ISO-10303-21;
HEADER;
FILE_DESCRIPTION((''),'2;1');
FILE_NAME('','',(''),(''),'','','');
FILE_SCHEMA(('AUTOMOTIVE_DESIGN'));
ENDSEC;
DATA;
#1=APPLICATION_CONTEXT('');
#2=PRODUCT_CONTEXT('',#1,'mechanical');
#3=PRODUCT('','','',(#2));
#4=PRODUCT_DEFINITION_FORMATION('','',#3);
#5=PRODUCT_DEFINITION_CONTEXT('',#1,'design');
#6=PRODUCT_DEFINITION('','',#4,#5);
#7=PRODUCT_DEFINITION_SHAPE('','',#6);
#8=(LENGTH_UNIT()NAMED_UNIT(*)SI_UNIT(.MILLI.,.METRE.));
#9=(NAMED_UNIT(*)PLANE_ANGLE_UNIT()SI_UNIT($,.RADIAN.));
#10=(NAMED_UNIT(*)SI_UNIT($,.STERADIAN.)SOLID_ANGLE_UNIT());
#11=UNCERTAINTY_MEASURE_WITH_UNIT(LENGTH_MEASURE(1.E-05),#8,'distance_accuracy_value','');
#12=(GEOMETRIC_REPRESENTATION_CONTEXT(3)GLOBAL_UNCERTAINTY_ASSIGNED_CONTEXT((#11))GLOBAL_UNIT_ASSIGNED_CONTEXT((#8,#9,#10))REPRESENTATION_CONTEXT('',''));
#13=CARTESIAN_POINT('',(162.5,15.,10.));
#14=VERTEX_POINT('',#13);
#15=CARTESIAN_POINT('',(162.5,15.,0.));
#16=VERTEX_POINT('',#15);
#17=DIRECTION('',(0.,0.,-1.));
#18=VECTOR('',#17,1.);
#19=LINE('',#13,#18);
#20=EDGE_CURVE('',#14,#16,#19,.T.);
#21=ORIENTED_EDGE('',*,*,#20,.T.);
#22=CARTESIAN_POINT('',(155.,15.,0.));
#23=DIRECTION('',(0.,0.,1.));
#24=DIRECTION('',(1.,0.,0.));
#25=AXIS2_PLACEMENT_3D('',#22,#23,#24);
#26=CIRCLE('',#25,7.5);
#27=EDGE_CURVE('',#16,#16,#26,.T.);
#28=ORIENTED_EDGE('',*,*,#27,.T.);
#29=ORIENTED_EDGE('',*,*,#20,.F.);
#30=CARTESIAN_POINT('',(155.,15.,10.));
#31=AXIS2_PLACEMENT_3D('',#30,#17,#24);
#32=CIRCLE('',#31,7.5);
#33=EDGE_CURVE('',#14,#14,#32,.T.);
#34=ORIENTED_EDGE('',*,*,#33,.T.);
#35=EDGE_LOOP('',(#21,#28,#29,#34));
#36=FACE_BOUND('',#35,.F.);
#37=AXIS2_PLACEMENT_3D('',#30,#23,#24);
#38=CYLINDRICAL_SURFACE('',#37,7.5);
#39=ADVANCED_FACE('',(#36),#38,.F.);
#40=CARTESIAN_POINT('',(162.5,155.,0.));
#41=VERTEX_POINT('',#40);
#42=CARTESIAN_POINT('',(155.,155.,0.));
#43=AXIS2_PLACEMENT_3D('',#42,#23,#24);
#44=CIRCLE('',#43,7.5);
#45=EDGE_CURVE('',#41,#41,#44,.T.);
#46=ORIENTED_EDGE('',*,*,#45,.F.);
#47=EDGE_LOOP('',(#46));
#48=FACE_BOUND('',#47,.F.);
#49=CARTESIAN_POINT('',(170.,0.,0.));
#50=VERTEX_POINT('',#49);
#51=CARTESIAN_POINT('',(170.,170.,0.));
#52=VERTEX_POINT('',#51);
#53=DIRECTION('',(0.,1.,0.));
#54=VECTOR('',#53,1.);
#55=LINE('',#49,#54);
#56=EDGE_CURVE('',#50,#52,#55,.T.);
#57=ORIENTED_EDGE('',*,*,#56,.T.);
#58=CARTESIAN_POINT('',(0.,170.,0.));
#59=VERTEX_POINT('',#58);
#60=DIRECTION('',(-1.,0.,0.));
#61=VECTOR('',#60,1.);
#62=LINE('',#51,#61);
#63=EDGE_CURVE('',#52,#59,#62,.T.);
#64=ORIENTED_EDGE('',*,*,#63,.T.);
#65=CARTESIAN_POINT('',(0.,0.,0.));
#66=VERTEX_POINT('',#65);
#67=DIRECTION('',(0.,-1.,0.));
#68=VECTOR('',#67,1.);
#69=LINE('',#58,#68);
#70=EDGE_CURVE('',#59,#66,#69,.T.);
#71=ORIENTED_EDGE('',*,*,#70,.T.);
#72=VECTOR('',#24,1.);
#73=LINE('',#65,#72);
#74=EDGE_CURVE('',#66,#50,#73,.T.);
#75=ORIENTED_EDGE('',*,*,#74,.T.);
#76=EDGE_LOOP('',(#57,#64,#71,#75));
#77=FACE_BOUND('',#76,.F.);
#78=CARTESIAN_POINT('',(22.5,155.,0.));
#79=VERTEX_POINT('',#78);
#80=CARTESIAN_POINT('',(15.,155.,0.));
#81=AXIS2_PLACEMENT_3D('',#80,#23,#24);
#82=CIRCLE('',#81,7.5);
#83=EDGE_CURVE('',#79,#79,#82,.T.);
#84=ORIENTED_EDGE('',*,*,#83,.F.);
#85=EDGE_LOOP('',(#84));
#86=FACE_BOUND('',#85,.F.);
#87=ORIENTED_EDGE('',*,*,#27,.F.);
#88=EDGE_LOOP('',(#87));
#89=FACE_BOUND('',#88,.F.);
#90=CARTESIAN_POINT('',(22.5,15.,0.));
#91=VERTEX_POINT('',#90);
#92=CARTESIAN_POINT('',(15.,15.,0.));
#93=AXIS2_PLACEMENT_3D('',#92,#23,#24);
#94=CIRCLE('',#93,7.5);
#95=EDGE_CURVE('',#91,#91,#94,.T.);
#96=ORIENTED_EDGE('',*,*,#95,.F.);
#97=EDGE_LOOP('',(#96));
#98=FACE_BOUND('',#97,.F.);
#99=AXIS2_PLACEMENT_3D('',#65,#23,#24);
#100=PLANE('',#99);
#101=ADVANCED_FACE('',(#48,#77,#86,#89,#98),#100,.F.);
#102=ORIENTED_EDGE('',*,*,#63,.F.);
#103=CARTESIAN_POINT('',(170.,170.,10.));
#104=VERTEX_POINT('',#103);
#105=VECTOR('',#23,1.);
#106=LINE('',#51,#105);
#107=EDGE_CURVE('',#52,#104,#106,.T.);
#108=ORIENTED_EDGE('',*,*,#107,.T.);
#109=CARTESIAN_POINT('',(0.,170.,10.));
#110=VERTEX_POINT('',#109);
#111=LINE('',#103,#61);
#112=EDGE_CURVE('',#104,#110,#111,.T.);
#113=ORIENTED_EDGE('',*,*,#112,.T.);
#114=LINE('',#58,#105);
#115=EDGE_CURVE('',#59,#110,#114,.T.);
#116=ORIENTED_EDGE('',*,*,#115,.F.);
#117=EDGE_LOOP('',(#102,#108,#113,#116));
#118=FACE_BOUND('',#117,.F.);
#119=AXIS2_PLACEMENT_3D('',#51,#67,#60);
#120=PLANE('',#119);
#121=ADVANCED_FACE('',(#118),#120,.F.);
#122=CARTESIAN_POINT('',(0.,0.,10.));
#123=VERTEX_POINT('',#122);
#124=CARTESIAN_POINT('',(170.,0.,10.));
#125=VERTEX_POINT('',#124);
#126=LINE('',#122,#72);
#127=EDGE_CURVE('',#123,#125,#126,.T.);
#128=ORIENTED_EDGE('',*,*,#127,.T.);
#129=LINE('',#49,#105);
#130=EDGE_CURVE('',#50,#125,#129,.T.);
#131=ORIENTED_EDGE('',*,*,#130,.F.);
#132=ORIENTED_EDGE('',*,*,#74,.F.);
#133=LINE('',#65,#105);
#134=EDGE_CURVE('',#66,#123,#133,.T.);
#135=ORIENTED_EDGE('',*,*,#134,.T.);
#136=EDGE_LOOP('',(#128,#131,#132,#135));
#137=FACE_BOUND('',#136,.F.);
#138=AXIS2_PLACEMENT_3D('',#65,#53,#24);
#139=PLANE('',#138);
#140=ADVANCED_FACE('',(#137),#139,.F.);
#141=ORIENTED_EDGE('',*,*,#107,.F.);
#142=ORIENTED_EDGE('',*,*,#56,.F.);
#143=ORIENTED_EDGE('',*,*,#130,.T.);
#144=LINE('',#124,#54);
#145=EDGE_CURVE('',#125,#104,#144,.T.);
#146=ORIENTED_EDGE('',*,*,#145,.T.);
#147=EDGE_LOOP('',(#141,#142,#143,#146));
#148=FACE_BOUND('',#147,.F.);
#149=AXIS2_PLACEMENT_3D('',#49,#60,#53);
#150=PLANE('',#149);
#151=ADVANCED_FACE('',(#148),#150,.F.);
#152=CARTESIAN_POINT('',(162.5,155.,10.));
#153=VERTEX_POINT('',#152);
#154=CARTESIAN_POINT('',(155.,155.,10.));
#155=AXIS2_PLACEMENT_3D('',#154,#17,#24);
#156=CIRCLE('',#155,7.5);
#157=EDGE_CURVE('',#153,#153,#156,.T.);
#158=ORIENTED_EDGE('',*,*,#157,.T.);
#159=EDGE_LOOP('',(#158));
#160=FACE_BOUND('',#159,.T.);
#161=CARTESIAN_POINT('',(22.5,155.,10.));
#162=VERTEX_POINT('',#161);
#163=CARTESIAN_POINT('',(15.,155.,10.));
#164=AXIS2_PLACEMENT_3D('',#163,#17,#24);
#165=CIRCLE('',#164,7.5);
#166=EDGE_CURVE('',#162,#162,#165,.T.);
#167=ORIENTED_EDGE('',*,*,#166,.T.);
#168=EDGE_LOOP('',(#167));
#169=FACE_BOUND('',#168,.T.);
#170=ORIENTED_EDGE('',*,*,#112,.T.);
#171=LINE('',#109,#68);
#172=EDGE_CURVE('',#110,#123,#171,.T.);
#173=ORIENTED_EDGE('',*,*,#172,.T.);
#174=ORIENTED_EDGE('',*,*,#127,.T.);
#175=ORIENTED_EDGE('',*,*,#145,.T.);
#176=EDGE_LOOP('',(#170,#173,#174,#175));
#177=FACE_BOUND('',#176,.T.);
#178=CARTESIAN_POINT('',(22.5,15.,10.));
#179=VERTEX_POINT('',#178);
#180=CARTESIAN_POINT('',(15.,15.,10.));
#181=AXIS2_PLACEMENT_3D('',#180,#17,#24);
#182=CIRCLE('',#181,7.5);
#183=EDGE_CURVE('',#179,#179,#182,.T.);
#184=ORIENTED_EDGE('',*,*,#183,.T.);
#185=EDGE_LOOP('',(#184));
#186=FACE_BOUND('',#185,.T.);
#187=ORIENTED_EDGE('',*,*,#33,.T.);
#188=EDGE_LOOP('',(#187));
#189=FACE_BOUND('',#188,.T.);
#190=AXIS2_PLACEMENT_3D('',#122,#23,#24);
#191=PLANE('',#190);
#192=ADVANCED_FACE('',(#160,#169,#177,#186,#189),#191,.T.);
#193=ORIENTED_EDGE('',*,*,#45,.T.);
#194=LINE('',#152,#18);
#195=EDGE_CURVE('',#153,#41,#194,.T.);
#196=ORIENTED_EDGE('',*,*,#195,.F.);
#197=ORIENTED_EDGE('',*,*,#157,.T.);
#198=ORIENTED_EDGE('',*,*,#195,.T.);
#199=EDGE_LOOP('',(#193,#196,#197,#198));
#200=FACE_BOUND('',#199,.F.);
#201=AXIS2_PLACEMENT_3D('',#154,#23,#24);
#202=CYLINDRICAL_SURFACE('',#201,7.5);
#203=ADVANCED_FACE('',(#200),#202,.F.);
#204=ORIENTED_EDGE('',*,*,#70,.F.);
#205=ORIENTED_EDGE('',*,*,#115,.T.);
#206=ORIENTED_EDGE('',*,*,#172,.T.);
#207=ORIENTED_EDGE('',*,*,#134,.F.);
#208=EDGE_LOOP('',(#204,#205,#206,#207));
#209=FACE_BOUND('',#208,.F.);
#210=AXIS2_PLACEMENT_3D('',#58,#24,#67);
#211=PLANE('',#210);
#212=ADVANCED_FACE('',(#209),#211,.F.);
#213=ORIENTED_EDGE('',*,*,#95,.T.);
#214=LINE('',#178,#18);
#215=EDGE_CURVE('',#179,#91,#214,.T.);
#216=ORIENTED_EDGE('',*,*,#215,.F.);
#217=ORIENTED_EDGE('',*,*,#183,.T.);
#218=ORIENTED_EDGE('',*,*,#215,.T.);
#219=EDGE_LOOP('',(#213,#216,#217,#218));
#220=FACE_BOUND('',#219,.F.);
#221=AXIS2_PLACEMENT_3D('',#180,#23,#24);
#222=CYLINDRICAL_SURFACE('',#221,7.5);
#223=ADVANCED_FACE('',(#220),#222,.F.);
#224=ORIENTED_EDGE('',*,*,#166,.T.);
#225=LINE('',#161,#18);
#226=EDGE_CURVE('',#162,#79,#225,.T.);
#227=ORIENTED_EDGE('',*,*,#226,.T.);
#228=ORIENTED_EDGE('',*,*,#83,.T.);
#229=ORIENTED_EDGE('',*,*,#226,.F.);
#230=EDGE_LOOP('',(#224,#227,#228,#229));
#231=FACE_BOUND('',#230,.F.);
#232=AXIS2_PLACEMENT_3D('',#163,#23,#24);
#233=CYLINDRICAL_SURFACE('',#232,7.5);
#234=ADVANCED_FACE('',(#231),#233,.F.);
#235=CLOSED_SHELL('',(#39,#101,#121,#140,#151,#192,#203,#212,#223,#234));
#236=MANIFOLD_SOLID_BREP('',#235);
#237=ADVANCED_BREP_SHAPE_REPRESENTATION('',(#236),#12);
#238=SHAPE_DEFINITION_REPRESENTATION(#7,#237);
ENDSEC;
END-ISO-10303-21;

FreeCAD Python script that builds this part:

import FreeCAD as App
import Part
import Sketcher
from FreeCAD import Vector

doc = App.newDocument("Part")
body = doc.addObject("PartDesign::Body", "Body")

sketch1 = body.newObject("Sketcher::SketchObject", "Sketch")
sketch1.AttachmentSupport = (doc.getObject("XY_Plane"), [""])
sketch1.MapMode = "FlatFace"
sketch1.addGeometry([
    Part.LineSegment(Vector(0, 170, 0), Vector(0, 0, 0)),
    Part.LineSegment(Vector(0, 0, 0), Vector(170, 0, 0)),
    Part.LineSegment(Vector(170, 0, 0), Vector(170, 170, 0)),
    Part.LineSegment(Vector(170, 170, 0), Vector(0, 170, 0)),
], False)
sketch1.addConstraint([
    Sketcher.Constraint("Coincident", 0, 2, 1, 1),
    Sketcher.Constraint("Coincident", 1, 2, 2, 1),
    Sketcher.Constraint("Coincident", 2, 2, 3, 1),
    Sketcher.Constraint("Coincident", 3, 2, 0, 1),
    Sketcher.Constraint("Vertical", 0),
    Sketcher.Constraint("Horizontal", 1),
    Sketcher.Constraint("Vertical", 2),
    Sketcher.Constraint("Horizontal", 3),
    Sketcher.Constraint("Coincident", 0, 2, -1, 1),
    Sketcher.Constraint("Equal", 3, 0),
    Sketcher.Constraint("DistanceX", 1, 1, 1, 2, 170.0),
])
pad1 = body.newObject("PartDesign::Pad", "Pad")
pad1.Profile = sketch1
pad1.Length = 10

sketch2 = body.newObject("Sketcher::SketchObject", "Sketch001")
sketch2.AttachmentSupport = (doc.getObject("XY_Plane"), [""])
sketch2.MapMode = "FlatFace"
sketch2.AttachmentOffset = App.Placement(Vector(0, 0, 10), App.Rotation())
sketch2.addGeometry([
    Part.Circle(Vector(15, 15, 0), Vector(0, 0, 1), 8),
    Part.Circle(Vector(155, 15, 0), Vector(0, 0, 1), 8),
    Part.Circle(Vector(15, 155, 0), Vector(0, 0, 1), 8),
    Part.Circle(Vector(155, 155, 0), Vector(0, 0, 1), 8),
], False)
sketch2.addConstraint([
    Sketcher.Constraint("Equal", 0, 1),
    Sketcher.Constraint("Equal", 1, 2),
    Sketcher.Constraint("Equal", 2, 3),
    Sketcher.Constraint("Horizontal", 0, 3, 1, 3),
    Sketcher.Constraint("Horizontal", 2, 3, 3, 3),
    Sketcher.Constraint("Vertical", 0, 3, 2, 3),
    Sketcher.Constraint("Vertical", 1, 3, 3, 3),
    Sketcher.Constraint("Diameter", 0, 15.0),
    Sketcher.Constraint("DistanceX", -1, 1, 0, 3, 15.0),
    Sketcher.Constraint("DistanceY", -1, 1, 0, 3, 15.0),
    Sketcher.Constraint("DistanceX", -1, 1, 1, 3, 155.0),
    Sketcher.Constraint("DistanceY", -1, 1, 2, 3, 155.0),
])
pocket1 = body.newObject("PartDesign::Pocket", "Pocket")
pocket1.Profile = sketch2
pocket1.Length = 10

doc.recompute()
